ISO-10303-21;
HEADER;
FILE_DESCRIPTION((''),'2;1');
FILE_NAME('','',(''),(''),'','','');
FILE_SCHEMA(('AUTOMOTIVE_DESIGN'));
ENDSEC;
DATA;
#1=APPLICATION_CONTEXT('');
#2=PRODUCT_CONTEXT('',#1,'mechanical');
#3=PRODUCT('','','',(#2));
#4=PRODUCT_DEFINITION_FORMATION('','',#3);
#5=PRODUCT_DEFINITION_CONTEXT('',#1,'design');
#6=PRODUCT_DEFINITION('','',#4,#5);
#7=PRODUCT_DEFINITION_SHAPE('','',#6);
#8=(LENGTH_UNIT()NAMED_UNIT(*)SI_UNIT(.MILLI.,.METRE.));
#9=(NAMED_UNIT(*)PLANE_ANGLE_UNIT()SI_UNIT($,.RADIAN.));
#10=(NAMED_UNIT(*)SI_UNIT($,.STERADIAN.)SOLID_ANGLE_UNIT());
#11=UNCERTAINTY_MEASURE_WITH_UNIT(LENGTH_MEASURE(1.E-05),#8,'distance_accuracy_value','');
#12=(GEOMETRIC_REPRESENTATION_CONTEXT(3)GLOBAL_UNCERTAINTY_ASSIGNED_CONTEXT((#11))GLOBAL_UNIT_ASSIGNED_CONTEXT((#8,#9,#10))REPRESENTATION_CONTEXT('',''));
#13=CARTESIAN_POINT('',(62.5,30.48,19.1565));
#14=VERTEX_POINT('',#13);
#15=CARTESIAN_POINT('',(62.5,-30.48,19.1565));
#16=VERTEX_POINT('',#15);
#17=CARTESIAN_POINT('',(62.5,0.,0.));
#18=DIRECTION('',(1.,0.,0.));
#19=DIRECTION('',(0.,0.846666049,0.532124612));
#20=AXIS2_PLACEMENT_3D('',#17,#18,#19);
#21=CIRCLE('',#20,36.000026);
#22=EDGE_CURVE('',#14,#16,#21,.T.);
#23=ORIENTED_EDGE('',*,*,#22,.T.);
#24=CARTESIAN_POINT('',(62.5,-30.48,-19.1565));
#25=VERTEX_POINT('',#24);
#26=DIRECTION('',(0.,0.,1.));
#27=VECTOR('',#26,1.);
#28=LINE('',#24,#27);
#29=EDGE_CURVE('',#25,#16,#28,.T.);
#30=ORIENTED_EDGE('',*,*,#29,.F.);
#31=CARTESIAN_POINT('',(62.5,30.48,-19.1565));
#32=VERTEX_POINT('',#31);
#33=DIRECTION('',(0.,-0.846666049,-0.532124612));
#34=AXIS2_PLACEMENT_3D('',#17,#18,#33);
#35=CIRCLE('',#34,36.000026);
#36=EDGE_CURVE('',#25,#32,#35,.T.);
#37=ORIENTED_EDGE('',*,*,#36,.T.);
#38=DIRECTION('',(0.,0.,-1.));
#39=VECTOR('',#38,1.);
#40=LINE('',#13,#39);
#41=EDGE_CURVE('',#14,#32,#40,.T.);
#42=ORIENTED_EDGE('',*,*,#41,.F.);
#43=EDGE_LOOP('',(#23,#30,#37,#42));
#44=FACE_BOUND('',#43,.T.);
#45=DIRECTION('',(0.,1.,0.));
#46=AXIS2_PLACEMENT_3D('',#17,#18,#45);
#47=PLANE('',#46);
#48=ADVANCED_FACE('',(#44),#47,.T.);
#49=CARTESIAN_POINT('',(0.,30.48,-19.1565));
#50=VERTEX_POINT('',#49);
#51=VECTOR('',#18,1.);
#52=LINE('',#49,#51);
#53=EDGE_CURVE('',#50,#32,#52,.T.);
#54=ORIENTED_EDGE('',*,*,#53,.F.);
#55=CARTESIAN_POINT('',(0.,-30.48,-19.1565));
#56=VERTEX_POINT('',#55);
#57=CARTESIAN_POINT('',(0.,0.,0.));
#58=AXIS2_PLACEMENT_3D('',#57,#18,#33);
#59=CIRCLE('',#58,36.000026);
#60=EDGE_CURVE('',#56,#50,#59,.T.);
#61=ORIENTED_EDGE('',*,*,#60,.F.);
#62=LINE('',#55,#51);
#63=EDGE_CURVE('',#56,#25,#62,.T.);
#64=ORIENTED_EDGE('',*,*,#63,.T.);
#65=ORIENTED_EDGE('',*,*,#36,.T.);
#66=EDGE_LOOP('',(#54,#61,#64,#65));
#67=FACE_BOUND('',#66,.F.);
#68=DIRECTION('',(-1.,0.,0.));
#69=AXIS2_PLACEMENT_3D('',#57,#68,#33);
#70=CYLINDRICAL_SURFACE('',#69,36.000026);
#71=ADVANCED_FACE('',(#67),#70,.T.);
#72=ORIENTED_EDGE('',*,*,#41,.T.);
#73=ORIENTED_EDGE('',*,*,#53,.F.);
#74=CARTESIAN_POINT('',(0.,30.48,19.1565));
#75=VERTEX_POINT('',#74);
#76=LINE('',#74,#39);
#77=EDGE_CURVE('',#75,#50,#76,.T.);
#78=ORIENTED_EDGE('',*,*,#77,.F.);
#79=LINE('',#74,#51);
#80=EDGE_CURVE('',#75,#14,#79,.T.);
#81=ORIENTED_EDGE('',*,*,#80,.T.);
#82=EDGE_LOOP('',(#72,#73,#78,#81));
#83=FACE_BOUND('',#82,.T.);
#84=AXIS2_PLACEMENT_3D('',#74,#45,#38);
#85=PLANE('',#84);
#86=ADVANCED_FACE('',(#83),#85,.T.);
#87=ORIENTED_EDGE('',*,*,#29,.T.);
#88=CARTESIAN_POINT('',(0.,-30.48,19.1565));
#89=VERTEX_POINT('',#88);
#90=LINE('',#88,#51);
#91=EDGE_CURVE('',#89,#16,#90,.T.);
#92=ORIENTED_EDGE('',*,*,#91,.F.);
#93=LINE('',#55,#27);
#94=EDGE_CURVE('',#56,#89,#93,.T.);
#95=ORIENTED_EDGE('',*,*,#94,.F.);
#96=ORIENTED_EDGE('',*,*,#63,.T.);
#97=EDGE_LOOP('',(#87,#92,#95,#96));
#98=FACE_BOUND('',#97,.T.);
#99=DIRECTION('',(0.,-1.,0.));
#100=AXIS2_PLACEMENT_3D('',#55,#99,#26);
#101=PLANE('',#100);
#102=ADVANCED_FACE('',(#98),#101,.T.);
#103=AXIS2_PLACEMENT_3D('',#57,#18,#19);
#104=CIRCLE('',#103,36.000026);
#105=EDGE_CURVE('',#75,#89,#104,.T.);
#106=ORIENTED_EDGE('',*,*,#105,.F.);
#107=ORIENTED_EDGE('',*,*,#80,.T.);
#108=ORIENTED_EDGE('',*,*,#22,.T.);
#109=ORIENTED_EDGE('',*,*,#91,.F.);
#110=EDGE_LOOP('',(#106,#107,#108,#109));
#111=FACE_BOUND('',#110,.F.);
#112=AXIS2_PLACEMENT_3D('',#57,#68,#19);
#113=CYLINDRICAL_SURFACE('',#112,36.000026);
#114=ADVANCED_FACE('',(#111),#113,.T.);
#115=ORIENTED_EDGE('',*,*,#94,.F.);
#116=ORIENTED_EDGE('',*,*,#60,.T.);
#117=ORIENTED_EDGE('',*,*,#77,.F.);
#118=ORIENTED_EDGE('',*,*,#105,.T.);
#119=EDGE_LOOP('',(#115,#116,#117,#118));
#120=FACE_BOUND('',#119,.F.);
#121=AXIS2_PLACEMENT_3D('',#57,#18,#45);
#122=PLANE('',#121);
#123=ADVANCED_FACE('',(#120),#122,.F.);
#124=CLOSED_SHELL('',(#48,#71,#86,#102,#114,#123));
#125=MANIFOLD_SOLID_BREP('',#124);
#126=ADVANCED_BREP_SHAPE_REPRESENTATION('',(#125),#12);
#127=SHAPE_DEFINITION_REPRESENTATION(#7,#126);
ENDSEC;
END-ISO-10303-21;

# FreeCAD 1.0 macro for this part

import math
import FreeCAD as App
import Part
import Sketcher

V = App.Vector
Q = App.Units.Quantity

doc = App.newDocument("Part")
body = doc.addObject("PartDesign::Body", "Body")

sketch1 = body.newObject("Sketcher::SketchObject", "Sketch")
sketch1.AttachmentSupport = (doc.getObject("YZ_Plane"), [""])
sketch1.MapMode = "FlatFace"
sketch1.addGeometry(Part.LineSegment(V(30, -19, 0), V(30, 19, 0)), False)
sketch1.addGeometry(Part.ArcOfCircle(Part.Circle(V(0, 0, 0), V(0, 0, 1), 36), math.radians(32), math.radians(148)), False)
sketch1.addGeometry(Part.LineSegment(V(-30, 19, 0), V(-30, -19, 0)), False)
sketch1.addGeometry(Part.ArcOfCircle(Part.Circle(V(0, 0, 0), V(0, 0, 1), 36), math.radians(-148), math.radians(-32)), False)
sketch1.addConstraint(Sketcher.Constraint("Coincident", 0, 2, 1, 1))
sketch1.addConstraint(Sketcher.Constraint("Coincident", 1, 2, 2, 1))
sketch1.addConstraint(Sketcher.Constraint("Coincident", 2, 2, 3, 1))
sketch1.addConstraint(Sketcher.Constraint("Coincident", 3, 2, 0, 1))
sketch1.addConstraint(Sketcher.Constraint("Vertical", 0))
sketch1.addConstraint(Sketcher.Constraint("Vertical", 2))
sketch1.addConstraint(Sketcher.Constraint("Coincident", 1, 3, -1, 1))
sketch1.addConstraint(Sketcher.Constraint("Coincident", 3, 3, -1, 1))
sketch1.addConstraint(Sketcher.Constraint("Equal", 1, 3))
sketch1.addConstraint(Sketcher.Constraint("Horizontal", 0, 2, 1, 2))
sketch1.addConstraint(Sketcher.Constraint("Radius", 1, Q("36 mm")))
sketch1.addConstraint(Sketcher.Constraint("DistanceX", -1, 1, 0, 2, Q("30.48 mm")))
pad1 = body.newObject("PartDesign::Pad", "Pad")
pad1.Profile = sketch1
pad1.Length = 62.5

doc.recompute()
